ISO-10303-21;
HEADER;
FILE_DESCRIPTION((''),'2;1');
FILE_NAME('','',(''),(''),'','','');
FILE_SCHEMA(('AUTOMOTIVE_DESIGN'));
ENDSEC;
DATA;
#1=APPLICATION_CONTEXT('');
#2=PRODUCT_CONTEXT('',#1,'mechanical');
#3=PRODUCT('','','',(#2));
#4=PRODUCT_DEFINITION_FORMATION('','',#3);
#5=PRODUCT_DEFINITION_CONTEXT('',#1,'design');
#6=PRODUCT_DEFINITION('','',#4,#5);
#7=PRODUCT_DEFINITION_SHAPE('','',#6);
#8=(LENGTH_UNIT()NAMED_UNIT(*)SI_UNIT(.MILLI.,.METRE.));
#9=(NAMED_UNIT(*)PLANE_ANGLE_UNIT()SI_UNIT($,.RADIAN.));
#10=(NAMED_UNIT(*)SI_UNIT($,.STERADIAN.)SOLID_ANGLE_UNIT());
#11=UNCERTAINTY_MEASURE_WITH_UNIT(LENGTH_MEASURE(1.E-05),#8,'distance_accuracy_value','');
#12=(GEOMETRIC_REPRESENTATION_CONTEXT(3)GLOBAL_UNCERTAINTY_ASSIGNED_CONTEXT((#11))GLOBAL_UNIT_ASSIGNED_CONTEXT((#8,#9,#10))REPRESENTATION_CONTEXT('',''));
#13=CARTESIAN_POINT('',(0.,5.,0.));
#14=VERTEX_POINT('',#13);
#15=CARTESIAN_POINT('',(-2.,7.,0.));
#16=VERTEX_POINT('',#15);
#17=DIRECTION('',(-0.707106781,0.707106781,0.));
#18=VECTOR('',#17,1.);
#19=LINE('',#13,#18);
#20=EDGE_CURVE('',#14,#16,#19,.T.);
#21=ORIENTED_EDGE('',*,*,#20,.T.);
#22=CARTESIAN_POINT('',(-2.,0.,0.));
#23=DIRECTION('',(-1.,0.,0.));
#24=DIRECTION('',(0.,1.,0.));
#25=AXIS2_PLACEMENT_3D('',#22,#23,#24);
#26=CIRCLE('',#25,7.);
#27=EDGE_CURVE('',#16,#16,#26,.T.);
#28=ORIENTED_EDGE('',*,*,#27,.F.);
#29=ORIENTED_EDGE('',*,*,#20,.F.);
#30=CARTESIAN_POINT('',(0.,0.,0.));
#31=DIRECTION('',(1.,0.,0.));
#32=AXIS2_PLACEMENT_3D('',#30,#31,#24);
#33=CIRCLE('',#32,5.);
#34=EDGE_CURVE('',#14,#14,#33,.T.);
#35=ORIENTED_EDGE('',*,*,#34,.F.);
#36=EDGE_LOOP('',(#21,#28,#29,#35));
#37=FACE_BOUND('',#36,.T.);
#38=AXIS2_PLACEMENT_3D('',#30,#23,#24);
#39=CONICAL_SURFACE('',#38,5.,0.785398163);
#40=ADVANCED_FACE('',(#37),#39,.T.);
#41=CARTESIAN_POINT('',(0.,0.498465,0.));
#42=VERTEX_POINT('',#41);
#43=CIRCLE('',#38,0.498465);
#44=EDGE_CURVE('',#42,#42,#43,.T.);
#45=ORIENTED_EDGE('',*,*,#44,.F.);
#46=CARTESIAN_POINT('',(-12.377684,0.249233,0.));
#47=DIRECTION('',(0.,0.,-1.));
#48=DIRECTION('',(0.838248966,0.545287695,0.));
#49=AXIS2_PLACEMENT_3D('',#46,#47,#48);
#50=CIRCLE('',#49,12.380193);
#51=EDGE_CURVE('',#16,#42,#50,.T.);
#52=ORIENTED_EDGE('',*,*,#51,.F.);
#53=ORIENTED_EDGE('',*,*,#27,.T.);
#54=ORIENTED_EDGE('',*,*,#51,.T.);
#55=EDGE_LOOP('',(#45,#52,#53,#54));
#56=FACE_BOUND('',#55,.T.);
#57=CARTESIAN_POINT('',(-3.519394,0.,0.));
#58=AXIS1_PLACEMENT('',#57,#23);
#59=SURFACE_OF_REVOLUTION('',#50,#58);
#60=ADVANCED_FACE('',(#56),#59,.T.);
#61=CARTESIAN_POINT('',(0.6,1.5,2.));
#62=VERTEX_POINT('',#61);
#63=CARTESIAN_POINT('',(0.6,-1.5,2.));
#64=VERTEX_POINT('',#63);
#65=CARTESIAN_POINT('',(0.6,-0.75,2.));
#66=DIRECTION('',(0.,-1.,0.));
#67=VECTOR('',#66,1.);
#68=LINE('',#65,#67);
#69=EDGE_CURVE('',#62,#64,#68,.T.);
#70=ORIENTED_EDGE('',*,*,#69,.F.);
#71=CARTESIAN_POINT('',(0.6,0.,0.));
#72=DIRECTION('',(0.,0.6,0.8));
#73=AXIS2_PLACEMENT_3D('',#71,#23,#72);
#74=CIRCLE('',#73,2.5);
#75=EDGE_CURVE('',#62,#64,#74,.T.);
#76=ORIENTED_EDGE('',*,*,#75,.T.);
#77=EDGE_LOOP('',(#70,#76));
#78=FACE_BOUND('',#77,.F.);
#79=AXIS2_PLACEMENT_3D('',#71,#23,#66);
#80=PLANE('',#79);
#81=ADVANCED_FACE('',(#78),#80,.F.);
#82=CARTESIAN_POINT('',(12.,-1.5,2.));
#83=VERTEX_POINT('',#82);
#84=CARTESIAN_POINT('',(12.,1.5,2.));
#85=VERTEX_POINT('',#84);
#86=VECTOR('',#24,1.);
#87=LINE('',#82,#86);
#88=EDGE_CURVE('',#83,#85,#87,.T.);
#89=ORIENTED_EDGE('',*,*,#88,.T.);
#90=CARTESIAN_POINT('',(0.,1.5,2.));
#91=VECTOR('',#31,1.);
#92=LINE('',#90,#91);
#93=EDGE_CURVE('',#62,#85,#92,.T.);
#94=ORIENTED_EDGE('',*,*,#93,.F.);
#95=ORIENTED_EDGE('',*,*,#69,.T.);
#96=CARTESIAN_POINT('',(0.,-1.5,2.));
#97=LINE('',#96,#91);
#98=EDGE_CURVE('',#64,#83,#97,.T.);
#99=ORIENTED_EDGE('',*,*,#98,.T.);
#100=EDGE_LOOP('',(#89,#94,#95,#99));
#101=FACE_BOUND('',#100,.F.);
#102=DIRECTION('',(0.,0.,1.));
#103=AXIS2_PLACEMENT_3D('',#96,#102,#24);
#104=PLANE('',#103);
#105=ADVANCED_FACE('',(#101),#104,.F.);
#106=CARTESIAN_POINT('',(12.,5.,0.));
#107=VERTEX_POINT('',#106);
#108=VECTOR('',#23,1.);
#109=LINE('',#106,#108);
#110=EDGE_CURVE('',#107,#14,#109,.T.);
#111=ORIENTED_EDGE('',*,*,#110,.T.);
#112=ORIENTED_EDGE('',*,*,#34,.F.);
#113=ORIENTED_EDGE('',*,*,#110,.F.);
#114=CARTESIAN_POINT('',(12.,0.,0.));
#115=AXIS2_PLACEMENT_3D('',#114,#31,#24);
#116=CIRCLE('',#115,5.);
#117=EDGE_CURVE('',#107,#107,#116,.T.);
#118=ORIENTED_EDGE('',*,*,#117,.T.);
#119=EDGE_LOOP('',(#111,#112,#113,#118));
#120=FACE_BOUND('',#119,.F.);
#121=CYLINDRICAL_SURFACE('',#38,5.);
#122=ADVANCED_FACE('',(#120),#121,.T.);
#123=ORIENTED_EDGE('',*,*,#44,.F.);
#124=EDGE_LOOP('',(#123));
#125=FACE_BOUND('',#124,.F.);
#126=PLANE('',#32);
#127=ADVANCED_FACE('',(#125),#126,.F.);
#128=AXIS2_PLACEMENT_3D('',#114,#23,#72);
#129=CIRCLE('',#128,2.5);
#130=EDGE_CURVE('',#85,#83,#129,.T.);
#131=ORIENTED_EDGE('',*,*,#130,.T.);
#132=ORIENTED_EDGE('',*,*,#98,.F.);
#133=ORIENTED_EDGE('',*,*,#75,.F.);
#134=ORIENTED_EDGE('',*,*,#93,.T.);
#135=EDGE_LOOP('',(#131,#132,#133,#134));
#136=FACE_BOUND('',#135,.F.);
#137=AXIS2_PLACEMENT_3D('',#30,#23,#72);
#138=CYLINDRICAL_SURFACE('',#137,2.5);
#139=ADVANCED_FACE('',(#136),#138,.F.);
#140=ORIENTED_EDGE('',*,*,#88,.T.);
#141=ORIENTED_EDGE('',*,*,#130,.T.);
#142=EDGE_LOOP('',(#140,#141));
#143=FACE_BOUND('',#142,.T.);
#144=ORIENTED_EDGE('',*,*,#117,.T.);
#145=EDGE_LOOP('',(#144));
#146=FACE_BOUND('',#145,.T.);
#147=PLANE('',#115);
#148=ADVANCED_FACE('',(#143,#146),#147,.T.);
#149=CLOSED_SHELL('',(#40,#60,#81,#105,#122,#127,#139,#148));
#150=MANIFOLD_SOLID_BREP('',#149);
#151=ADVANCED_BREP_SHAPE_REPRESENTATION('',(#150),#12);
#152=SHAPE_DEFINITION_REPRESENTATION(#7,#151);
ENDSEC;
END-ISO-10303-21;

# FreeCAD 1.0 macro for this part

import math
import FreeCAD as App
import Part
import Sketcher
Q = App.Units.Quantity

doc = App.newDocument("Part")
body = doc.addObject("PartDesign::Body", "Body")

# Sketch on YZ plane
sketch1 = body.newObject("Sketcher::SketchObject", "Sketch")
sketch1.AttachmentSupport = (doc.getObject("YZ_Plane"), [""])
sketch1.MapMode = "FlatFace"
sketch1.addGeometry([
    Part.Circle(App.Vector(0, 0, 0), App.Vector(0, 0, 1), 5),
    Part.LineSegment(App.Vector(-1.5, 2, 0), App.Vector(1.5, 2, 0)),
    Part.ArcOfCircle(Part.Circle(App.Vector(0, 0, 0), App.Vector(0, 0, 1), 2.5), math.radians(127), math.radians(413)),
], False)
sketch1.addConstraint([
    Sketcher.Constraint("Coincident", 1, 1, 2, 1),
    Sketcher.Constraint("Coincident", 2, 2, 1, 2),
    Sketcher.Constraint("Horizontal", 1),
    Sketcher.Constraint("Coincident", 0, 3, -1, 1),
    Sketcher.Constraint("Coincident", 2, 3, -1, 1),
    Sketcher.Constraint("Diameter", 0, Q("10 mm")),
    Sketcher.Constraint("Radius", 2, Q("2.5 mm")),
    Sketcher.Constraint("DistanceX", 1, 1, 1, 2, Q("3 mm")),
])
pad1 = body.newObject("PartDesign::Pad", "Pad")
pad1.Profile = sketch1
pad1.Length = 12

# Sketch on YZ plane
sketch2 = body.newObject("Sketcher::SketchObject", "Sketch001")
sketch2.AttachmentSupport = (doc.getObject("YZ_Plane"), [""])
sketch2.MapMode = "FlatFace"
sketch2.addGeometry(Part.Circle(App.Vector(0, 0, 0), App.Vector(0, 0, 1), 5), False)
sketch2.addConstraint([
    Sketcher.Constraint("Coincident", 0, 3, -1, 1),
    Sketcher.Constraint("Diameter", 0, Q("10 mm")),
])
pad2 = body.newObject("PartDesign::Pad", "Pad001")
pad2.Profile = sketch2
pad2.Length = 0.6

# Sketch on XY plane
sketch3 = body.newObject("Sketcher::SketchObject", "Sketch002")
sketch3.AttachmentSupport = (doc.getObject("XY_Plane"), [""])
sketch3.MapMode = "FlatFace"
sketch3.addGeometry([
    Part.LineSegment(App.Vector(0, 0.5, 0), App.Vector(0, 5, 0)),
    Part.LineSegment(App.Vector(0, 5, 0), App.Vector(-2, 7, 0)),
    Part.ArcOfCircle(Part.Circle(App.Vector(-12.4, 0.2, 0), App.Vector(0, 0, 1), 12.4), math.radians(1), math.radians(33)),
], False)
sketch3.addConstraint([
    Sketcher.Constraint("Coincident", 0, 2, 1, 1),
    Sketcher.Constraint("Coincident", 1, 2, 2, 2),
    Sketcher.Constraint("Coincident", 2, 1, 0, 1),
    Sketcher.Constraint("Vertical", 0),
    Sketcher.Constraint("PointOnObject", 0, 2, -2),
    Sketcher.Constraint("Angle", 1, Q("135 deg")),
    Sketcher.Constraint("DistanceY", -1, 1, 0, 2, Q("5 mm")),
    Sketcher.Constraint("DistanceX", 1, 2, -1, 1, Q("2 mm")),
    Sketcher.Constraint("Radius", 2, Q("12.380193 mm")),
    Sketcher.Constraint("DistanceY", 0, 1, 0, 2, Q("4.501535 mm")),
])
revolution = body.newObject("PartDesign::Revolution", "Revolution")
revolution.Profile = sketch3
revolution.ReferenceAxis = (sketch3, ["H_Axis"])
revolution.Angle = 360

doc.recompute()
